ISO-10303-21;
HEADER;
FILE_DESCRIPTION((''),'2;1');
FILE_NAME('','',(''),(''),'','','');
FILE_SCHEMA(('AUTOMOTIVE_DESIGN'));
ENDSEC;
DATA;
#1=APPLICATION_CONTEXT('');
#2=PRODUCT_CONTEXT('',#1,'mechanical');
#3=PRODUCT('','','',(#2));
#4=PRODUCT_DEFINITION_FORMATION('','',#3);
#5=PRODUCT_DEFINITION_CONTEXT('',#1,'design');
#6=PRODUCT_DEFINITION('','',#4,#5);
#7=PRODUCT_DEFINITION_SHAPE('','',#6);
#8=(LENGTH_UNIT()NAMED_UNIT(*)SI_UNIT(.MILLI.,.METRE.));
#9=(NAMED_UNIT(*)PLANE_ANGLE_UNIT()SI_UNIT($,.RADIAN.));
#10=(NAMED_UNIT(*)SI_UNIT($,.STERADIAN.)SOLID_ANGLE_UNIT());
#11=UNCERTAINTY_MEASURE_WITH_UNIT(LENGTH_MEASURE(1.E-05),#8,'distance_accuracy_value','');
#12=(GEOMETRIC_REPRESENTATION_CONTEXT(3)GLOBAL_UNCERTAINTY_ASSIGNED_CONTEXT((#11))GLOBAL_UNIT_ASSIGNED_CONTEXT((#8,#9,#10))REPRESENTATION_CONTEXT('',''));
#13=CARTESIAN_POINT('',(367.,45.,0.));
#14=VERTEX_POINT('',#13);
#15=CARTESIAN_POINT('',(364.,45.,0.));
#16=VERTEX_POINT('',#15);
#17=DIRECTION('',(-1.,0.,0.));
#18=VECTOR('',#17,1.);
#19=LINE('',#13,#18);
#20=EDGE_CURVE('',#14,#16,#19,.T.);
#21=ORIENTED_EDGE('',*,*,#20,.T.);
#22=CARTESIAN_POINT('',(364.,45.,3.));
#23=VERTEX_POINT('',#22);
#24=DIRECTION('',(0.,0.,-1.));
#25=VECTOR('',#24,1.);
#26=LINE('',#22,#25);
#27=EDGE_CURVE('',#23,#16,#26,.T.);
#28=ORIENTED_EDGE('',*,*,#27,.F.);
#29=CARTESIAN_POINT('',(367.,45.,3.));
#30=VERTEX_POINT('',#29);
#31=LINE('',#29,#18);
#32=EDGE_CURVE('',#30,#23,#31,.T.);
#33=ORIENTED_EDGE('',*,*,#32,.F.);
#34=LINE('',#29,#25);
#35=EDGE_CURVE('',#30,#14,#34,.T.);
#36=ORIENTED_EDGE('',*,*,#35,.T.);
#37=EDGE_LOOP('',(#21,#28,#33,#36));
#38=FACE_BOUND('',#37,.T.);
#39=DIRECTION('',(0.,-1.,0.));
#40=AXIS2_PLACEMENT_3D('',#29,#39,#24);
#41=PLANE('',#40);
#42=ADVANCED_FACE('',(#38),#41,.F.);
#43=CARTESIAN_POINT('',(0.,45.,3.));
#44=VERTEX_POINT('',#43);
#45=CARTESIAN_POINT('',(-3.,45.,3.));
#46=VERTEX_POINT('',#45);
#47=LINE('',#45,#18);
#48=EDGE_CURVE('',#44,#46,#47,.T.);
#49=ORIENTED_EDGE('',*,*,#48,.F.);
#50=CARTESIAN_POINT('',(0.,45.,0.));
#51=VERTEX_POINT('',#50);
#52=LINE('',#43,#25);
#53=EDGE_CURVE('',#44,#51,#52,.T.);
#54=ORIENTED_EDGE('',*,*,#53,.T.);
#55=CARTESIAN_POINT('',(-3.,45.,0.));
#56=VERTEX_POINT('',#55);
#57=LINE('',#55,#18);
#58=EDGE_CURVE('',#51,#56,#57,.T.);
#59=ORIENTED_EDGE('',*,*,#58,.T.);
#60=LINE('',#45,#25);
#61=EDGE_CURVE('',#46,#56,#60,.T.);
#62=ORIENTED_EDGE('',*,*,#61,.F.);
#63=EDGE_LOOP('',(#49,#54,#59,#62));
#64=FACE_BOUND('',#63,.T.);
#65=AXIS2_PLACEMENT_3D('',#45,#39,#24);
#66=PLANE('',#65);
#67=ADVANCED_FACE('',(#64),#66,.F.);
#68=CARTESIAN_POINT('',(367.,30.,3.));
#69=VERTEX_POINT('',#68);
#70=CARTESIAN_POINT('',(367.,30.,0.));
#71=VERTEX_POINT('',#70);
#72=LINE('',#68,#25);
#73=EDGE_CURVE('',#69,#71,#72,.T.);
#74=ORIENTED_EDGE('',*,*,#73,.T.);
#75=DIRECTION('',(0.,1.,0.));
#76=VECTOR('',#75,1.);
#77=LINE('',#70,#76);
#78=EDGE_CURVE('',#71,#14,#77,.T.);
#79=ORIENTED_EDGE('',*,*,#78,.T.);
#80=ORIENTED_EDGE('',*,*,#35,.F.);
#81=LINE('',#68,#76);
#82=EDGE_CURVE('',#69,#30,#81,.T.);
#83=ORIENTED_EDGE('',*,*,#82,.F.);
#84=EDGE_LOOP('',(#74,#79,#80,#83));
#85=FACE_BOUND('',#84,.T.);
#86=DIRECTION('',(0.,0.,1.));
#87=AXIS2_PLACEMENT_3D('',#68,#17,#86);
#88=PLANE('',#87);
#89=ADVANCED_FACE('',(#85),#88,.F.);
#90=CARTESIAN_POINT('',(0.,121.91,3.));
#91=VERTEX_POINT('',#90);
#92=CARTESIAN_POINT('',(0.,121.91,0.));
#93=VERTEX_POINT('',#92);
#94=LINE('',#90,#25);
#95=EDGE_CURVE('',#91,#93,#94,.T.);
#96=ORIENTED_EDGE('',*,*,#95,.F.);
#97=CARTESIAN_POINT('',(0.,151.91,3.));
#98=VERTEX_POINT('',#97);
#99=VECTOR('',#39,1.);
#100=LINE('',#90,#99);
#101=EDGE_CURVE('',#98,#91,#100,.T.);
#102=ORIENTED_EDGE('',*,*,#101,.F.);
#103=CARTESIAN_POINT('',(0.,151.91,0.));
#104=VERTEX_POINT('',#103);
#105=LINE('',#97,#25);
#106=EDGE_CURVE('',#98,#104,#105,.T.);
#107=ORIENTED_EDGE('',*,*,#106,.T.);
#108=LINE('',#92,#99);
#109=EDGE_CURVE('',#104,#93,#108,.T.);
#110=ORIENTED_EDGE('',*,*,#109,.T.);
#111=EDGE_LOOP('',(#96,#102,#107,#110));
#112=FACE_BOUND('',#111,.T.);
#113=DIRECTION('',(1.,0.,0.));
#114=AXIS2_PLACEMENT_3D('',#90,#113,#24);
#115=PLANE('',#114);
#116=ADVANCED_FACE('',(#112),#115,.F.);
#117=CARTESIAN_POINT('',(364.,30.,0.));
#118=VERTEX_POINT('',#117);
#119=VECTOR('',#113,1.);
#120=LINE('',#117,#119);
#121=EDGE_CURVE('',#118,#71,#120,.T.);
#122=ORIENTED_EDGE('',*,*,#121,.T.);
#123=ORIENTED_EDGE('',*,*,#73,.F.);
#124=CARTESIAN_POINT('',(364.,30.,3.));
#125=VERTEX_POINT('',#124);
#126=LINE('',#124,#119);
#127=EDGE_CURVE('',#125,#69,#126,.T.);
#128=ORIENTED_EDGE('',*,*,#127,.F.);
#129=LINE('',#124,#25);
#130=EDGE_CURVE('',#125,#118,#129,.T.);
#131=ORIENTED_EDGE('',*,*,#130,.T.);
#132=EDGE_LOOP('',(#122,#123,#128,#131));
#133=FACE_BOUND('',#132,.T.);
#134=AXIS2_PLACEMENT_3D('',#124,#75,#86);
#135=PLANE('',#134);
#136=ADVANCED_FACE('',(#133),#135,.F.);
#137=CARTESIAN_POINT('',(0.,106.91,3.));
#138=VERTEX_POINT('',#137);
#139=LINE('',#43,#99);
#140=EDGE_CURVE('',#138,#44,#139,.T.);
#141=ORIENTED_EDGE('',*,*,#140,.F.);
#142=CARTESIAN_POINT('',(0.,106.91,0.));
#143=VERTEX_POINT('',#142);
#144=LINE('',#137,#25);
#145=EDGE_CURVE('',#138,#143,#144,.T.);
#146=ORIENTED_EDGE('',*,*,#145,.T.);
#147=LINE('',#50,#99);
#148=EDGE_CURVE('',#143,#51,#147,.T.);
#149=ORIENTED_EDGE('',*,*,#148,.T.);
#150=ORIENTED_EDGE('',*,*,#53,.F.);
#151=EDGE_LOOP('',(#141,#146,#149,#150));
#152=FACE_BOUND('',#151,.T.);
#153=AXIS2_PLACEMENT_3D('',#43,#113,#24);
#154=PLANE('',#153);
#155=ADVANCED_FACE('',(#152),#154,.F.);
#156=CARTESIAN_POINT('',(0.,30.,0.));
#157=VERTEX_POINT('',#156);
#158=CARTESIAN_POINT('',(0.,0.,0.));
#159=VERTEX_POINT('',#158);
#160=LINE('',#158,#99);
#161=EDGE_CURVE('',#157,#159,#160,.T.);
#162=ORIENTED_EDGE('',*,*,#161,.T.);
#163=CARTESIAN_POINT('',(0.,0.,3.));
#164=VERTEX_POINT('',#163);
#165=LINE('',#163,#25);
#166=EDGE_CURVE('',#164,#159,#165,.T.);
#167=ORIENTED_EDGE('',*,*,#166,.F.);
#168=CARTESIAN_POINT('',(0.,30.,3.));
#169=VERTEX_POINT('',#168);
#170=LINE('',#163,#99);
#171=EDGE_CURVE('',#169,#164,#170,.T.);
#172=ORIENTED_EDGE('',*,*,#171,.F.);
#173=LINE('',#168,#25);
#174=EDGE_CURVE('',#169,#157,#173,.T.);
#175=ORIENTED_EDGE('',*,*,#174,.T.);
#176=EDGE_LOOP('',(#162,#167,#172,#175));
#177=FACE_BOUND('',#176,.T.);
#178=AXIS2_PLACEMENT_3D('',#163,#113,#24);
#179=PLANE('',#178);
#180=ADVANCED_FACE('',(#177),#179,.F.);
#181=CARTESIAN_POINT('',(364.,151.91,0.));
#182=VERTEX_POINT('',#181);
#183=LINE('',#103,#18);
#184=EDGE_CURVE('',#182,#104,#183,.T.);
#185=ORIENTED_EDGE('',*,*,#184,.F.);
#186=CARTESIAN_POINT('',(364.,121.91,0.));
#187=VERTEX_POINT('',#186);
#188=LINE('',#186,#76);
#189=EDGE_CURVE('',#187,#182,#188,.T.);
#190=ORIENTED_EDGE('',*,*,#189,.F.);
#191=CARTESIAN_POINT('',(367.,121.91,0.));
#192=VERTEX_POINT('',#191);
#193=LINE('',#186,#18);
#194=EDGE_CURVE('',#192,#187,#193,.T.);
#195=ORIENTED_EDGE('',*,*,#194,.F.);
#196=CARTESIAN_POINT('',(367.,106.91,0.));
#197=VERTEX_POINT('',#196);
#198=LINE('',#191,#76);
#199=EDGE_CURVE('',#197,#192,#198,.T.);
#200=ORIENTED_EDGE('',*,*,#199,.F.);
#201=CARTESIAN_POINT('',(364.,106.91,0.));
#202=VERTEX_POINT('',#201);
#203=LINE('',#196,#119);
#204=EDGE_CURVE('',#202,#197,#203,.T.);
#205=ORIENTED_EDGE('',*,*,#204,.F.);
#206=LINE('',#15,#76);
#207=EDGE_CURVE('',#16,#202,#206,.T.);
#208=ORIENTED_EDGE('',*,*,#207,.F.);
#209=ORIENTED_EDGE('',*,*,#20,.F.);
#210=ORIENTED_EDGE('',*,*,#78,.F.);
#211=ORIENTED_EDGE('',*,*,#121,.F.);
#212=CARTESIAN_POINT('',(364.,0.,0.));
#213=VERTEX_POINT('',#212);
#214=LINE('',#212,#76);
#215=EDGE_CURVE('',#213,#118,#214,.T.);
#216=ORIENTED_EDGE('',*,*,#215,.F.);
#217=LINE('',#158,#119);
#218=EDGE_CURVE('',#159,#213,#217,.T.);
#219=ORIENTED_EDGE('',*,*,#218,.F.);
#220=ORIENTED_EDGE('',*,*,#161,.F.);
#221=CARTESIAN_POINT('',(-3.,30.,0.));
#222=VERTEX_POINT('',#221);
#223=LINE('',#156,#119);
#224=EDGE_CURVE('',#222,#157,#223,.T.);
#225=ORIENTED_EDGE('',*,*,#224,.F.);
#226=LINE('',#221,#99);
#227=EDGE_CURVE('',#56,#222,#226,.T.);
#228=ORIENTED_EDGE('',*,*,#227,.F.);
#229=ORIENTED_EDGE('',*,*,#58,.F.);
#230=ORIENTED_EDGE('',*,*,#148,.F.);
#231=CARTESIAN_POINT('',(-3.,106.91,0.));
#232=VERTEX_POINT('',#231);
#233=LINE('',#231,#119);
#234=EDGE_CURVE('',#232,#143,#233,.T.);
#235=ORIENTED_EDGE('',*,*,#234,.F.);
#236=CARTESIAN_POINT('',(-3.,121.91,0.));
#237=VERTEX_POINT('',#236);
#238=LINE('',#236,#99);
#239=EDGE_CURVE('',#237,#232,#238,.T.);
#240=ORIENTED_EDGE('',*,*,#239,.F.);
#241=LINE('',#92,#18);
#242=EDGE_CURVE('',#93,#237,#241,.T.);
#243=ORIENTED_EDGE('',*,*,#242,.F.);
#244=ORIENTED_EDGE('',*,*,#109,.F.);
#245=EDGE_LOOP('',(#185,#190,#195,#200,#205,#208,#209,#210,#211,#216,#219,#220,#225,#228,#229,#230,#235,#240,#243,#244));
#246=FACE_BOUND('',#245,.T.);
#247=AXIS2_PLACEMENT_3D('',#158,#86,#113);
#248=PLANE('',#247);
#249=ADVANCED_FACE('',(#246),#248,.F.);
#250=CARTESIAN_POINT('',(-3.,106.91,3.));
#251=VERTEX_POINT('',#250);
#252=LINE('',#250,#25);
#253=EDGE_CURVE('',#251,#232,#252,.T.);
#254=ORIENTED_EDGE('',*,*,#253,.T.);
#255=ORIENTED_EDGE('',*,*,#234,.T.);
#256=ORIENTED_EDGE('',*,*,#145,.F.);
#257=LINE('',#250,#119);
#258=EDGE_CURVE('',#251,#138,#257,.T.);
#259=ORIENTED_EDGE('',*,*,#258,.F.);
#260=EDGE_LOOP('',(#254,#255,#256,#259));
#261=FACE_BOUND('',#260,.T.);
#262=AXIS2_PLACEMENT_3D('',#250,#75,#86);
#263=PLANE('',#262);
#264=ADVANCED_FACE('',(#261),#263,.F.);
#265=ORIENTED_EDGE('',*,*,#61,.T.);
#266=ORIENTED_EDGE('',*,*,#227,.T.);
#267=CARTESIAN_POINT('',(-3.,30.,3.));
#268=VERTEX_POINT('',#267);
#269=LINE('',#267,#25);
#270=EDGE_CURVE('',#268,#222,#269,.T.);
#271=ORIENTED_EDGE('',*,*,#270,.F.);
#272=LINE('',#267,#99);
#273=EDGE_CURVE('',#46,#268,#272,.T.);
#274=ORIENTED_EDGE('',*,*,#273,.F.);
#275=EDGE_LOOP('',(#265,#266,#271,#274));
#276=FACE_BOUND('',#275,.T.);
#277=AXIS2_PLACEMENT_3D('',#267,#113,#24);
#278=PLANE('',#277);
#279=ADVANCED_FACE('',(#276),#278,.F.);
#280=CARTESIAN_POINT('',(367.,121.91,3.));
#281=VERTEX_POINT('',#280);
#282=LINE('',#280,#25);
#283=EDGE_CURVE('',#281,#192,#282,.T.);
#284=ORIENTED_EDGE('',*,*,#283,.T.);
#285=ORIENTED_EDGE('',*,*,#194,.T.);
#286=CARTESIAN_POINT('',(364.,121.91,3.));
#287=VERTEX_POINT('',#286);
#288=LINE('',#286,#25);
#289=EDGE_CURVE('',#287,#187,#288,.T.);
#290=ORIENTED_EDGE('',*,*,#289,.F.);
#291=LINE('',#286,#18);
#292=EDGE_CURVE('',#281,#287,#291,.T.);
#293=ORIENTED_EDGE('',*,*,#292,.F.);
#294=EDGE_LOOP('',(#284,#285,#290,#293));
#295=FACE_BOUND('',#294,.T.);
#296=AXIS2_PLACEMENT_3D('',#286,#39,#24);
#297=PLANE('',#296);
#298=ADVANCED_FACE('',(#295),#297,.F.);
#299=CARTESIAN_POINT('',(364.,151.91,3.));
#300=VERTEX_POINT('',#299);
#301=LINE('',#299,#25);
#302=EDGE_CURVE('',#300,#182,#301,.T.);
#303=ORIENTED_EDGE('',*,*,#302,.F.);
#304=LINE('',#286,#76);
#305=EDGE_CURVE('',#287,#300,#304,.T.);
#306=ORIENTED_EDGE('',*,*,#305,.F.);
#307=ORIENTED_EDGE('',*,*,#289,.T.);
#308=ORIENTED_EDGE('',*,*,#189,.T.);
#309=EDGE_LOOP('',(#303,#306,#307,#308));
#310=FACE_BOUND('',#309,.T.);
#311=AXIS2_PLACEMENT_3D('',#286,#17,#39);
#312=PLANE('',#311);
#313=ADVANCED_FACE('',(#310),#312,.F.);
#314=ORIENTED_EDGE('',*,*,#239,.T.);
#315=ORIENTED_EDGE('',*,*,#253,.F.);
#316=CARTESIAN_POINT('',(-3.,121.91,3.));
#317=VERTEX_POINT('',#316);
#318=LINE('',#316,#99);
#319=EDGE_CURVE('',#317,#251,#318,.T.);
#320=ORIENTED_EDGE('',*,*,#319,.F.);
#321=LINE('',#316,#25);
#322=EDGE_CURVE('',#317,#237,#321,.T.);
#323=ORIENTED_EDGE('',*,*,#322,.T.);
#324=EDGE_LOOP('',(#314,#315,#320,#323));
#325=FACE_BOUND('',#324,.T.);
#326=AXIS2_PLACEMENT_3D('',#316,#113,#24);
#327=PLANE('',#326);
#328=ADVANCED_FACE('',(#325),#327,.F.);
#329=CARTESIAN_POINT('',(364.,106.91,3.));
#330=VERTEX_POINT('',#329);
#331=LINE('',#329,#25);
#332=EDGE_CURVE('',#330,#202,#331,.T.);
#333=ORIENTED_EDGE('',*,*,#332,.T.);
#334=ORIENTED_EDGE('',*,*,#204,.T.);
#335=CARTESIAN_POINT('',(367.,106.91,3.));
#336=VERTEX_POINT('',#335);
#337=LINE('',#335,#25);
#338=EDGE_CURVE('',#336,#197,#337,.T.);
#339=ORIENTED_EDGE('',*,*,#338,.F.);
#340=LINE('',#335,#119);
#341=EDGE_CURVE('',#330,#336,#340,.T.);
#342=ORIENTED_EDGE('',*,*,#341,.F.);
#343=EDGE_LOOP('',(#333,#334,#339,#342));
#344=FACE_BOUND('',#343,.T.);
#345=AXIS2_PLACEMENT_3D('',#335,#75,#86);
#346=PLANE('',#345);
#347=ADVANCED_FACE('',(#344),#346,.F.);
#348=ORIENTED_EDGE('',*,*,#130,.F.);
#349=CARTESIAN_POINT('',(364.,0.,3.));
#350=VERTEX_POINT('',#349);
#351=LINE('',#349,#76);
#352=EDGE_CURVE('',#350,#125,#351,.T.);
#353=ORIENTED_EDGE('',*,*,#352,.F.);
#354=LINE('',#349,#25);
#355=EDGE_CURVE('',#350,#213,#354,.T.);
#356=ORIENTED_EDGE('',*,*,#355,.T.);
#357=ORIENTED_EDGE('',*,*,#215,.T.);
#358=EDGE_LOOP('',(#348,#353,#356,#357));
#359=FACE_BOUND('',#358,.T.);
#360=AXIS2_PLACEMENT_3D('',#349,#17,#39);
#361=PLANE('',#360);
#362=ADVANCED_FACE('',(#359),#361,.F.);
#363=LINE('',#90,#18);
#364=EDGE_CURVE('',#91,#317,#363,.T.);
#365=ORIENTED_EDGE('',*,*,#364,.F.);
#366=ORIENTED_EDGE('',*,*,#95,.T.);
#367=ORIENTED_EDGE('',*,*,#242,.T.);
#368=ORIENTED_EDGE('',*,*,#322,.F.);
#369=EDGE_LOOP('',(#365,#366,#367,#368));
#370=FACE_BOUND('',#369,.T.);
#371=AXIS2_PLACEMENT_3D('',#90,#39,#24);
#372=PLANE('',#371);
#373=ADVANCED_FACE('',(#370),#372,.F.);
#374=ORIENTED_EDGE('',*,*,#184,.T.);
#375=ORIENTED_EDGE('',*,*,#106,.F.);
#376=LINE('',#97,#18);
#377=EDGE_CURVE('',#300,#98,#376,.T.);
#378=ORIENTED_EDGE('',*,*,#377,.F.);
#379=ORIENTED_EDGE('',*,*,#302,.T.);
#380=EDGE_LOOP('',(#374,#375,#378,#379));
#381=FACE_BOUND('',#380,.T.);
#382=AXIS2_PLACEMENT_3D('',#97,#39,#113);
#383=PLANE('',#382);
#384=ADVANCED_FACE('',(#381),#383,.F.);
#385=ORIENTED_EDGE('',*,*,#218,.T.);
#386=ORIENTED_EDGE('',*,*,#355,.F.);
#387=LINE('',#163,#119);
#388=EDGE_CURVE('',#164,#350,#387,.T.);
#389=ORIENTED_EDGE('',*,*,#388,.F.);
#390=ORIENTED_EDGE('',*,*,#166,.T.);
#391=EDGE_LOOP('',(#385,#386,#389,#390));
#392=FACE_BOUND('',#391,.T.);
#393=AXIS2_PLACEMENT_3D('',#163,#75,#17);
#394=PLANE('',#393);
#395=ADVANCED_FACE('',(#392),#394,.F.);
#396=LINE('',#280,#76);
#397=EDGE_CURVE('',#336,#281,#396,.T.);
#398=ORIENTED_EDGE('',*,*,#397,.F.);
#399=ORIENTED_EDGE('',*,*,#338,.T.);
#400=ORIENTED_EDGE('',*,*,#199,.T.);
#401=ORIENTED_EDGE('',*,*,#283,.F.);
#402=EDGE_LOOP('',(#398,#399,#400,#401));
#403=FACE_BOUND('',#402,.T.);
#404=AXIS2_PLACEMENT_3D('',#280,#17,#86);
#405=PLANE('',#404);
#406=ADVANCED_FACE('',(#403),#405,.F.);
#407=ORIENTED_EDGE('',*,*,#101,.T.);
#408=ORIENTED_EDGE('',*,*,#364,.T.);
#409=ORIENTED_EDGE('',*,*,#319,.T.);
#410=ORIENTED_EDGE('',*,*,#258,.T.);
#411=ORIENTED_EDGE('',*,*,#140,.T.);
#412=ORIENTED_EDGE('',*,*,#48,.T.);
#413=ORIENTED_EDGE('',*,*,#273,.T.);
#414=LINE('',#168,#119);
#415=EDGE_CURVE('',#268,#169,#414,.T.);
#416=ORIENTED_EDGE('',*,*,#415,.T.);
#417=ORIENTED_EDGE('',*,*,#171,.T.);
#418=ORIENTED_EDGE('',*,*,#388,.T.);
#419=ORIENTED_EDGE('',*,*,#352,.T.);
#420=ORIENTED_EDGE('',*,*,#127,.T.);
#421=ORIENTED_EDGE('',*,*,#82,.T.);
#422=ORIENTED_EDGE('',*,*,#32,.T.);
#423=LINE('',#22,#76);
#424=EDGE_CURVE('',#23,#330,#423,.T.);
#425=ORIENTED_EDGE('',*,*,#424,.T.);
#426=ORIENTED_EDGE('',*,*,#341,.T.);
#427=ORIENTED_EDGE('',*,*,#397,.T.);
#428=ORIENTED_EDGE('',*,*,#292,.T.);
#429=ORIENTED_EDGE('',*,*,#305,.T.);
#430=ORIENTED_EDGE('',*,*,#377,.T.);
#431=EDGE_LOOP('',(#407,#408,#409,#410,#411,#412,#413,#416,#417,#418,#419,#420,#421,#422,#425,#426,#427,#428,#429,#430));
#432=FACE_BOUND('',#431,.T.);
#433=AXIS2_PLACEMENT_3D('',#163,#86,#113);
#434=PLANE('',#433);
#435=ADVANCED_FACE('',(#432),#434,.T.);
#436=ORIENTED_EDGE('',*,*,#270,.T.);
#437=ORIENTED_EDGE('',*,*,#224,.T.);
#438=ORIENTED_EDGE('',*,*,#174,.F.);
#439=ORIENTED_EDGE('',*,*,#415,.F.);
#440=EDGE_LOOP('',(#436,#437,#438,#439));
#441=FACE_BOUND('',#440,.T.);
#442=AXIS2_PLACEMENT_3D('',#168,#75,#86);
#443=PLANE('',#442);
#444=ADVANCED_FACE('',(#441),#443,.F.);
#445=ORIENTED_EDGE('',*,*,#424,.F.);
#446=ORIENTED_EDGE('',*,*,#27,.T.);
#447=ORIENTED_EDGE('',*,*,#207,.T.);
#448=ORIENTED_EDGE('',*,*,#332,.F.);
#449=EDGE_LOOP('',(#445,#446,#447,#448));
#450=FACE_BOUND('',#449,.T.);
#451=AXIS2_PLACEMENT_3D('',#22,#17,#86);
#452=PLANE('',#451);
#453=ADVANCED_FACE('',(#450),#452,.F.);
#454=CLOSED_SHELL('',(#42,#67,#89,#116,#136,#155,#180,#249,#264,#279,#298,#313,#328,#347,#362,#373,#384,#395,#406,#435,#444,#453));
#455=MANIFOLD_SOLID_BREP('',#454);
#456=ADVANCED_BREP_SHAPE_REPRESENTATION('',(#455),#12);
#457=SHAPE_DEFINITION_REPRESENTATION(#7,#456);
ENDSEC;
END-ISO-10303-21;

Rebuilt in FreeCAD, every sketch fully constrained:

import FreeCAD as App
import Part
import Sketcher

V = App.Vector


def add_polygon(sketch, points):
    """Adds a closed chain of lines whose ends are joined by coincident constraints."""
    first, n = sketch.GeometryCount, len(points)
    for a, b in zip(points, points[1:] + points[:1]):
        sketch.addGeometry(Part.LineSegment(App.Vector(*a, 0), App.Vector(*b, 0)), False)
    for i in range(n):
        sketch.addConstraint(Sketcher.Constraint("Coincident", first + i, 2, first + (i + 1) % n, 1))

doc = App.newDocument("Part")
body = doc.addObject("PartDesign::Body", "Body")

# Sketch on XY plane
sketch1 = body.newObject("Sketcher::SketchObject", "Sketch")
sketch1.AttachmentSupport = (doc.getObject("XY_Plane"), [""])
sketch1.MapMode = "FlatFace"
add_polygon(sketch1, [(0, 0), (364, 0), (364, 30), (367, 30), (367, 45), (364, 45), (364, 106.9), (367, 106.9), (367, 121.9), (364, 121.9), (364, 151.9), (0, 151.9), (0, 121.9), (-3, 121.9), (-3, 106.9), (0, 106.9), (0, 45), (-3, 45), (-3, 30), (0, 30)])  # lines 0-19
sketch1.addConstraint([
    Sketcher.Constraint("Horizontal", 0),
    Sketcher.Constraint("Vertical", 1),
    Sketcher.Constraint("Horizontal", 2),
    Sketcher.Constraint("Vertical", 3),
    Sketcher.Constraint("Horizontal", 4),
    Sketcher.Constraint("Vertical", 5),
    Sketcher.Constraint("Horizontal", 6),
    Sketcher.Constraint("Vertical", 7),
    Sketcher.Constraint("Horizontal", 8),
    Sketcher.Constraint("Vertical", 9),
    Sketcher.Constraint("Horizontal", 10),
    Sketcher.Constraint("Vertical", 11),
    Sketcher.Constraint("Horizontal", 12),
    Sketcher.Constraint("Vertical", 13),
    Sketcher.Constraint("Horizontal", 14),
    Sketcher.Constraint("Vertical", 15),
    Sketcher.Constraint("Horizontal", 16),
    Sketcher.Constraint("Vertical", 17),
    Sketcher.Constraint("Horizontal", 18),
    Sketcher.Constraint("Vertical", 19),
    Sketcher.Constraint("Coincident", 19, 2, -1, 1),
    Sketcher.Constraint("PointOnObject", 10, 2, -2),
    Sketcher.Constraint("PointOnObject", 14, 2, -2),
    Sketcher.Constraint("Horizontal", 8, 2, 11, 2),
    Sketcher.Constraint("Horizontal", 6, 2, 13, 2),
    Sketcher.Constraint("Horizontal", 4, 2, 15, 2),
    Sketcher.Constraint("Horizontal", 2, 2, 17, 2),
    Sketcher.Constraint("Vertical", 1, 2, 4, 2),
    Sketcher.Constraint("Vertical", 3, 2, 6, 2),
    Sketcher.Constraint("Vertical", 5, 2, 8, 2),
    Sketcher.Constraint("Vertical", 13, 2, 16, 2),
    Sketcher.Constraint("Equal", 8, 12),
    Sketcher.Constraint("Equal", 3, 7),
    Sketcher.Constraint("Equal", 1, 9),
    Sketcher.Constraint("DistanceX", 0, 1, 0, 2, 364.0),
    Sketcher.Constraint("DistanceX", 2, 1, 2, 2, 3.0),
    Sketcher.Constraint("DistanceY", 1, 1, 1, 2, 30.0),
    Sketcher.Constraint("DistanceY", 3, 1, 3, 2, 15.0),
    Sketcher.Constraint("DistanceY", 5, 1, 5, 2, 61.91),
])
pad1 = body.newObject("PartDesign::Pad", "Pad")
pad1.Profile = sketch1
pad1.Length = 3

doc.recompute()
